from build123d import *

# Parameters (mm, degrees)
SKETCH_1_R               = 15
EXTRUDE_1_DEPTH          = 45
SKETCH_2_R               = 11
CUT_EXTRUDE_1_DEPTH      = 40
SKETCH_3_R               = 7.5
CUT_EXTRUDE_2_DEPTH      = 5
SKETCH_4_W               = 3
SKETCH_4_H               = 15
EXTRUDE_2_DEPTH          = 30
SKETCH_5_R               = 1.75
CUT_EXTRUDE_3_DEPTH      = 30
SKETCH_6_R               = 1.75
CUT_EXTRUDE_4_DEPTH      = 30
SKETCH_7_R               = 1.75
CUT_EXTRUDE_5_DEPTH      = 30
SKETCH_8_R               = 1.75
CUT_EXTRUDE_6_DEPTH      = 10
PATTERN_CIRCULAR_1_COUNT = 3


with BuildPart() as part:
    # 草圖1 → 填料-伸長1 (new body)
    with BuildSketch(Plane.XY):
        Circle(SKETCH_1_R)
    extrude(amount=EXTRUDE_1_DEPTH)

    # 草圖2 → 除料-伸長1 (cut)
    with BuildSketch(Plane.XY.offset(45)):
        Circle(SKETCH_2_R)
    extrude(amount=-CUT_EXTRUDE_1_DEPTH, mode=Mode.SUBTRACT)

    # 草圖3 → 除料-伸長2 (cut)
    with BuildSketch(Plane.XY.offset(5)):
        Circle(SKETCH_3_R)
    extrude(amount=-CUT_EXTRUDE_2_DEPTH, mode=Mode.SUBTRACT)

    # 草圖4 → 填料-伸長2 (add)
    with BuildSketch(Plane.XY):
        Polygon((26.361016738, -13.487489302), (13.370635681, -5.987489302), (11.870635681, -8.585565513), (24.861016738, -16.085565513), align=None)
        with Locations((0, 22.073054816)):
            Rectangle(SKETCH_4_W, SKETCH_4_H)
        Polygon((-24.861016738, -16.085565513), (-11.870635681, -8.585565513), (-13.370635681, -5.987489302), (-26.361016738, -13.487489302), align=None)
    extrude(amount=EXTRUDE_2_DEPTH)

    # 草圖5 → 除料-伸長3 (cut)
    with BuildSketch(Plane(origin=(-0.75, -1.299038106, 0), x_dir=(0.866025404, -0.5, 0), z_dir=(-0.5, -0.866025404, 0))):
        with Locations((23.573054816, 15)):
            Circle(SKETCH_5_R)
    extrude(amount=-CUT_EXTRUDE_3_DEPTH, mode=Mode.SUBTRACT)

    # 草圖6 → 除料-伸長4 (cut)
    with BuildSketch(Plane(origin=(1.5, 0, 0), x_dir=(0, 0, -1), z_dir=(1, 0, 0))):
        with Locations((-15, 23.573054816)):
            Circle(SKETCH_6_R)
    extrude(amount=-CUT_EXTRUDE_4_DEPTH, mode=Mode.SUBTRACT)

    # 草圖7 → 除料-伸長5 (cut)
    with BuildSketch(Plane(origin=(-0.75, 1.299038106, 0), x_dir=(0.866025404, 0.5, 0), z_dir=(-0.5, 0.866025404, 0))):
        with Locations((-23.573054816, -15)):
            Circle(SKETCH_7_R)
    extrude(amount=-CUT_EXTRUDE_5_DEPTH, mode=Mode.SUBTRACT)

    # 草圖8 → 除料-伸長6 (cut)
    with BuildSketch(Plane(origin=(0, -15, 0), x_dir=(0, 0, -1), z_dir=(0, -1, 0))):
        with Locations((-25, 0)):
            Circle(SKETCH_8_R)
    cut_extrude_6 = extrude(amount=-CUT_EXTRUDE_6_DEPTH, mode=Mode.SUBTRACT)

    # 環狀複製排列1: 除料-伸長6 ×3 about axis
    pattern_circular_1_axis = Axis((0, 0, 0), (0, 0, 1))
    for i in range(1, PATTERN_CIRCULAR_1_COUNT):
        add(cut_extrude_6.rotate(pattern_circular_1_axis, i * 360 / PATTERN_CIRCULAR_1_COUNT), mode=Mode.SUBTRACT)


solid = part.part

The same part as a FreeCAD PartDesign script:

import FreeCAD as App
import Part
import Sketcher

V = App.Vector
Q = App.Units.Quantity

doc = App.newDocument("Part")
params = doc.addObject("Spreadsheet::Sheet", "Params")
for row, (alias, value) in enumerate([
    ("sketch1_diameter", "30 mm"),
    ("pad1_length", "45 mm"),
    ("sketch2_diameter", "22 mm"),
    ("pocket1_length", "40 mm"),
    ("sketch3_diameter", "15 mm"),
    ("pocket2_length", "5 mm"),
    ("sketch4_width", "3 mm"),
    ("sketch4_height", "15 mm"),
    ("sketch4_length", "15 mm"),
    ("sketch4_length2", "3 mm"),
    ("pad2_length", "30 mm"),
    ("sketch5_diameter", "3.5 mm"),
    ("pocket3_length", "30 mm"),
    ("sketch6_diameter", "3.5 mm"),
    ("pocket4_length", "30 mm"),
    ("sketch7_diameter", "3.5 mm"),
    ("pocket5_length", "30 mm"),
    ("sketch8_diameter", "3.5 mm"),
    ("pocket6_length", "10 mm"),
], start=1):
    params.set(f"A{row}", alias)
    params.set(f"B{row}", "=" + value)
    params.setAlias(f"B{row}", alias)

body = doc.addObject("PartDesign::Body", "Body")

sketch1 = body.newObject("Sketcher::SketchObject", "Sketch")
sketch1.AttachmentSupport = (doc.getObject("XY_Plane"), [""])
sketch1.MapMode = "FlatFace"
sketch1.addGeometry(Part.Circle(V(0, 0, 0), V(0, 0, 1), 15), False)
sketch1.addConstraint(Sketcher.Constraint("Coincident", 0, 3, -1, 1))
sketch1.addConstraint(Sketcher.Constraint("Diameter", 0, 30.0))
sketch1.setExpression("Constraints[1]", "Params.sketch1_diameter")
pad1 = body.newObject("PartDesign::Pad", "Pad")
pad1.Profile = sketch1
pad1.setExpression("Length", "Params.pad1_length")

sketch2 = body.newObject("Sketcher::SketchObject", "Sketch001")
sketch2.AttachmentSupport = (doc.getObject("XY_Plane"), [""])
sketch2.MapMode = "FlatFace"
sketch2.AttachmentOffset = App.Placement(V(0, 0, 45), App.Rotation())
sketch2.addGeometry(Part.Circle(V(0, 0, 0), V(0, 0, 1), 11), False)
sketch2.addConstraint(Sketcher.Constraint("Coincident", 0, 3, -1, 1))
sketch2.addConstraint(Sketcher.Constraint("Diameter", 0, 22.0))
sketch2.setExpression("Constraints[1]", "Params.sketch2_diameter")
pocket1 = body.newObject("PartDesign::Pocket", "Pocket")
pocket1.Profile = sketch2
pocket1.setExpression("Length", "Params.pocket1_length")

sketch3 = body.newObject("Sketcher::SketchObject", "Sketch002")
sketch3.AttachmentSupport = (doc.getObject("XY_Plane"), [""])
sketch3.MapMode = "FlatFace"
sketch3.AttachmentOffset = App.Placement(V(0, 0, 5), App.Rotation())
sketch3.addGeometry(Part.Circle(V(0, 0, 0), V(0, 0, 1), 8), False)
sketch3.addConstraint(Sketcher.Constraint("Coincident", 0, 3, -1, 1))
sketch3.addConstraint(Sketcher.Constraint("Diameter", 0, 15.0))
sketch3.setExpression("Constraints[1]", "Params.sketch3_diameter")
pocket2 = body.newObject("PartDesign::Pocket", "Pocket001")
pocket2.Profile = sketch3
pocket2.setExpression("Length", "Params.pocket2_length")

sketch4 = body.newObject("Sketcher::SketchObject", "Sketch003")
sketch4.AttachmentSupport = (doc.getObject("XY_Plane"), [""])
sketch4.MapMode = "FlatFace"
sketch4.addGeometry(Part.LineSegment(V(26.4, -13.5, 0), V(13.4, -6, 0)), False)
sketch4.addGeometry(Part.LineSegment(V(13.4, -6, 0), V(11.9, -8.6, 0)), False)
sketch4.addGeometry(Part.LineSegment(V(11.9, -8.6, 0), V(24.9, -16.1, 0)), False)
sketch4.addGeometry(Part.LineSegment(V(24.9, -16.1, 0), V(26.4, -13.5, 0)), False)
sketch4.addGeometry(Part.LineSegment(V(-1.5, 29.6, 0), V(-1.5, 14.6, 0)), False)
sketch4.addGeometry(Part.LineSegment(V(-1.5, 14.6, 0), V(1.5, 14.6, 0)), False)
sketch4.addGeometry(Part.LineSegment(V(1.5, 14.6, 0), V(1.5, 29.6, 0)), False)
sketch4.addGeometry(Part.LineSegment(V(1.5, 29.6, 0), V(-1.5, 29.6, 0)), False)
sketch4.addGeometry(Part.LineSegment(V(-24.9, -16.1, 0), V(-11.9, -8.6, 0)), False)
sketch4.addGeometry(Part.LineSegment(V(-11.9, -8.6, 0), V(-13.4, -6, 0)), False)
sketch4.addGeometry(Part.LineSegment(V(-13.4, -6, 0), V(-26.4, -13.5, 0)), False)
sketch4.addGeometry(Part.LineSegment(V(-26.4, -13.5, 0), V(-24.9, -16.1, 0)), False)
sketch4.addConstraint(Sketcher.Constraint("Coincident", 0, 2, 1, 1))
sketch4.addConstraint(Sketcher.Constraint("Coincident", 1, 2, 2, 1))
sketch4.addConstraint(Sketcher.Constraint("Coincident", 2, 2, 3, 1))
sketch4.addConstraint(Sketcher.Constraint("Coincident", 3, 2, 0, 1))
sketch4.addConstraint(Sketcher.Constraint("Coincident", 4, 2, 5, 1))
sketch4.addConstraint(Sketcher.Constraint("Coincident", 5, 2, 6, 1))
sketch4.addConstraint(Sketcher.Constraint("Coincident", 6, 2, 7, 1))
sketch4.addConstraint(Sketcher.Constraint("Coincident", 7, 2, 4, 1))
sketch4.addConstraint(Sketcher.Constraint("Coincident", 8, 2, 9, 1))
sketch4.addConstraint(Sketcher.Constraint("Coincident", 9, 2, 10, 1))
sketch4.addConstraint(Sketcher.Constraint("Coincident", 10, 2, 11, 1))
sketch4.addConstraint(Sketcher.Constraint("Coincident", 11, 2, 8, 1))
sketch4.addConstraint(Sketcher.Constraint("Vertical", 4))
sketch4.addConstraint(Sketcher.Constraint("Horizontal", 5))
sketch4.addConstraint(Sketcher.Constraint("Vertical", 6))
sketch4.addConstraint(Sketcher.Constraint("Horizontal", 7))
sketch4.addConstraint(Sketcher.Constraint("Symmetric", 1, 2, 8, 2, -2))
sketch4.addConstraint(Sketcher.Constraint("Symmetric", 0, 2, 9, 2, -2))
sketch4.addConstraint(Sketcher.Constraint("Symmetric", 3, 2, 10, 2, -2))
sketch4.addConstraint(Sketcher.Constraint("Symmetric", 2, 2, 11, 2, -2))
sketch4.addConstraint(Sketcher.Constraint("Perpendicular", 0, 1))
sketch4.addConstraint(Sketcher.Constraint("Perpendicular", 1, 2))
sketch4.addConstraint(Sketcher.Constraint("Perpendicular", 2, 3))
sketch4.addConstraint(Sketcher.Constraint("DistanceX", 5, 1, 5, 2, 3.0))
sketch4.addConstraint(Sketcher.Constraint("DistanceY", 4, 2, 4, 1, 15.0))
sketch4.addConstraint(Sketcher.Constraint("Angle", 0, Q("150 deg")))
sketch4.addConstraint(Sketcher.Constraint("Distance", 0, 15.0))
sketch4.addConstraint(Sketcher.Constraint("Distance", 1, 3.0))
sketch4.addConstraint(Sketcher.Constraint("DistanceX", 4, 2, -1, 1, 1.5))
sketch4.addConstraint(Sketcher.Constraint("DistanceY", 0, 2, -1, 1, 5.987489))
sketch4.addConstraint(Sketcher.Constraint("DistanceY", 1, 2, 4, 2, 23.15862))
sketch4.addConstraint(Sketcher.Constraint("DistanceX", 8, 2, 1, 2, 23.741271))
sketch4.setExpression("Constraints[23]", "Params.sketch4_width")
sketch4.setExpression("Constraints[24]", "Params.sketch4_height")
sketch4.setExpression("Constraints[26]", "Params.sketch4_length")
sketch4.setExpression("Constraints[27]", "Params.sketch4_length2")
pad2 = body.newObject("PartDesign::Pad", "Pad001")
pad2.Profile = sketch4
pad2.setExpression("Length", "Params.pad2_length")

sketch5 = body.newObject("Sketcher::SketchObject", "Sketch004")
sketch5.Placement = App.Placement(V(-0.75, -1.299038, 0), App.Rotation(V(0.866025404, -0.5, 0), V(0, 0, 1), V(-0.5, -0.866025404, 0), "ZXY"))
sketch5.addGeometry(Part.Circle(V(23.6, 15, 0), V(0, 0, 1), 1.8), False)
sketch5.addConstraint(Sketcher.Constraint("Diameter", 0, 3.5))
sketch5.addConstraint(Sketcher.Constraint("DistanceY", -1, 1, 0, 3, 15.0))
sketch5.addConstraint(Sketcher.Constraint("DistanceX", -1, 1, 0, 3, 23.573055))
sketch5.setExpression("Constraints[0]", "Params.sketch5_diameter")
pocket3 = body.newObject("PartDesign::Pocket", "Pocket002")
pocket3.Profile = sketch5
pocket3.setExpression("Length", "Params.pocket3_length")

sketch6 = body.newObject("Sketcher::SketchObject", "Sketch005")
sketch6.AttachmentSupport = (doc.getObject("YZ_Plane"), [""])
sketch6.MapMode = "FlatFace"
sketch6.AttachmentOffset = App.Placement(V(0, 0, 1.5), App.Rotation())
sketch6.addGeometry(Part.Circle(V(23.6, 15, 0), V(0, 0, 1), 1.8), False)
sketch6.addConstraint(Sketcher.Constraint("Diameter", 0, 3.5))
sketch6.addConstraint(Sketcher.Constraint("DistanceY", -1, 1, 0, 3, 15.0))
sketch6.addConstraint(Sketcher.Constraint("DistanceX", -1, 1, 0, 3, 23.573055))
sketch6.setExpression("Constraints[0]", "Params.sketch6_diameter")
pocket4 = body.newObject("PartDesign::Pocket", "Pocket003")
pocket4.Profile = sketch6
pocket4.setExpression("Length", "Params.pocket4_length")

sketch7 = body.newObject("Sketcher::SketchObject", "Sketch006")
sketch7.Placement = App.Placement(V(-0.75, 1.299038, 0), App.Rotation(V(0.866025404, 0.5, 0), V(0, 0, -1), V(-0.5, 0.866025404, 0), "ZXY"))
sketch7.addGeometry(Part.Circle(V(-23.6, -15, 0), V(0, 0, 1), 1.8), False)
sketch7.addConstraint(Sketcher.Constraint("Diameter", 0, 3.5))
sketch7.addConstraint(Sketcher.Constraint("DistanceY", 0, 3, -1, 1, 15.0))
sketch7.addConstraint(Sketcher.Constraint("DistanceX", 0, 3, -1, 1, 23.573055))
sketch7.setExpression("Constraints[0]", "Params.sketch7_diameter")
pocket5 = body.newObject("PartDesign::Pocket", "Pocket004")
pocket5.Profile = sketch7
pocket5.setExpression("Length", "Params.pocket5_length")

sketch8 = body.newObject("Sketcher::SketchObject", "Sketch007")
sketch8.AttachmentSupport = (doc.getObject("XZ_Plane"), [""])
sketch8.MapMode = "FlatFace"
sketch8.AttachmentOffset = App.Placement(V(0, 0, 15), App.Rotation())
sketch8.addGeometry(Part.Circle(V(0, 25, 0), V(0, 0, 1), 1.8), False)
sketch8.addConstraint(Sketcher.Constraint("PointOnObject", 0, 3, -2))
sketch8.addConstraint(Sketcher.Constraint("Diameter", 0, 3.5))
sketch8.addConstraint(Sketcher.Constraint("DistanceY", -1, 1, 0, 3, 25.0))
sketch8.setExpression("Constraints[1]", "Params.sketch8_diameter")
pocket6 = body.newObject("PartDesign::Pocket", "Pocket005")
pocket6.Profile = sketch8
pocket6.setExpression("Length", "Params.pocket6_length")
doc.recompute()

polarpattern = body.newObject("PartDesign::PolarPattern", "PolarPattern")
polarpattern.Originals = [pocket6]
polarpattern.Axis = (doc.getObject("Z_Axis"), [""])
polarpattern.Angle = 360
polarpattern.Occurrences = 3
body.Tip = polarpattern

doc.recompute()
